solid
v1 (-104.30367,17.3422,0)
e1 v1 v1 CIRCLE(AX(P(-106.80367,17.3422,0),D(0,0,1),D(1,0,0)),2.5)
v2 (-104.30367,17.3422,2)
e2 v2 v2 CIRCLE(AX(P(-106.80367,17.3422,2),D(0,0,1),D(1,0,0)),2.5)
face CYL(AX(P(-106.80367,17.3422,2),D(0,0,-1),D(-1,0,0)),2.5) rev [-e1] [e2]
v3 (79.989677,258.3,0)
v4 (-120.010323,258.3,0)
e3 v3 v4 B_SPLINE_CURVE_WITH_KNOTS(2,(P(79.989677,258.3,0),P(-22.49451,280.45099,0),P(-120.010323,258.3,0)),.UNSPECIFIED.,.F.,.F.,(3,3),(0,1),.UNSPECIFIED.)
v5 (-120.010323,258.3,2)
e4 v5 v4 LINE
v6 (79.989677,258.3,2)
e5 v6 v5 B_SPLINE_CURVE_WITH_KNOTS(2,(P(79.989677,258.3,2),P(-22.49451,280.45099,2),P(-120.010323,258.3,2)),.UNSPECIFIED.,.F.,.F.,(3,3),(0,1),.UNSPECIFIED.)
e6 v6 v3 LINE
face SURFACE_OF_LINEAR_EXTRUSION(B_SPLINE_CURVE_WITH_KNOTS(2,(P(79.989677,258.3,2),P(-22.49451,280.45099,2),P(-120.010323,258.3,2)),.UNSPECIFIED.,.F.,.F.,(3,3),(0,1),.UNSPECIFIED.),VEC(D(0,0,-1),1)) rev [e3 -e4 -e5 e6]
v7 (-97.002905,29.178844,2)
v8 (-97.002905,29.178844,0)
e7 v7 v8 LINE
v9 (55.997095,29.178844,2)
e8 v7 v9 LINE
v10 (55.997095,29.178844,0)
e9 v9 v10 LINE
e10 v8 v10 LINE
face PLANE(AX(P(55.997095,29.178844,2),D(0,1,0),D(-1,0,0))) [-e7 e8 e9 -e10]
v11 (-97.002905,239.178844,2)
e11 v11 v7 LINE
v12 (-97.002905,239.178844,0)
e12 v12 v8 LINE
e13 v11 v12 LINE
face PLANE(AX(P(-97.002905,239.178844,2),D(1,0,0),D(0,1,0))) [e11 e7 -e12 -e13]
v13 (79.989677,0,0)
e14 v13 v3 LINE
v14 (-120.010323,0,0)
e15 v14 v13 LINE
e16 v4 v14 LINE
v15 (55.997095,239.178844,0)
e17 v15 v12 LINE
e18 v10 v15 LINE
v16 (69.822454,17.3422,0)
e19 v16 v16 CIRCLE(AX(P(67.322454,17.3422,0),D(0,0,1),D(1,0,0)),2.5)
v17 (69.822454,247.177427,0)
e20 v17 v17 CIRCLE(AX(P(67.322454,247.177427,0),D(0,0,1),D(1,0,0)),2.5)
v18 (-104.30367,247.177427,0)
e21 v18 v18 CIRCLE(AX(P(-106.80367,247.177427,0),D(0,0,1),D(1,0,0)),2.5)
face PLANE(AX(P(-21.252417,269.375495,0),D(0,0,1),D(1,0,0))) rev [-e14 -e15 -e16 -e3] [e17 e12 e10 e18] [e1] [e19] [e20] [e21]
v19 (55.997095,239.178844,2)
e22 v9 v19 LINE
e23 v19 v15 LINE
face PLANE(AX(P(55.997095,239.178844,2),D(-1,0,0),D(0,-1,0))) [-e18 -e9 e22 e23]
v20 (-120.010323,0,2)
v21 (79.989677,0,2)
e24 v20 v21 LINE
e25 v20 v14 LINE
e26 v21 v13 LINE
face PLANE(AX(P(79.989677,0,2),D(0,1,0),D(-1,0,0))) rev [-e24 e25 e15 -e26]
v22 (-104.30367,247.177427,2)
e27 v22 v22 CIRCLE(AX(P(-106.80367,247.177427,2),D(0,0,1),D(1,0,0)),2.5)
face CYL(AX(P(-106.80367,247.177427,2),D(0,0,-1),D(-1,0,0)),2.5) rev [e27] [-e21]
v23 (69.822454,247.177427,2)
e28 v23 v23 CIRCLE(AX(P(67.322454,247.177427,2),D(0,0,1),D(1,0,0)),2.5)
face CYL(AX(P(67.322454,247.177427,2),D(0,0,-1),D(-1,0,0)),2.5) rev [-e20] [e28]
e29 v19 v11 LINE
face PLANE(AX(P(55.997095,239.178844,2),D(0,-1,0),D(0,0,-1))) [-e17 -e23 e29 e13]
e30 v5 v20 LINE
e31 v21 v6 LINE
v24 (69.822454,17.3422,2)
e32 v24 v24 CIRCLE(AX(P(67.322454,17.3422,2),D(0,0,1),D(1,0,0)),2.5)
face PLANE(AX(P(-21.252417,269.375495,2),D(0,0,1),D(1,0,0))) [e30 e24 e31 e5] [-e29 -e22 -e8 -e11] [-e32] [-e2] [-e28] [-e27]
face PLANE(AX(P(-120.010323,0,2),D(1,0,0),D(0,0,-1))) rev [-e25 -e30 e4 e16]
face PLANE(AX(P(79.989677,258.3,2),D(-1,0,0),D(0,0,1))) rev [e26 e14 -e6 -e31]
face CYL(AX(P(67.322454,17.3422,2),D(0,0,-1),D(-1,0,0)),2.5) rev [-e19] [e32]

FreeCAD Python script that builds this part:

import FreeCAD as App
import Part
import Sketcher
Q = App.Units.Quantity

doc = App.newDocument("Part")
params = doc.addObject("Spreadsheet::Sheet", "Params")
for row, (alias, value) in enumerate([
    ("sketch1_diameter", "5 mm"),
    ("sketch1_width", "153 mm"),
    ("sketch1_height", "210 mm"),
    ("pad1_length", "2 mm"),
], start=1):
    params.set(f"A{row}", alias)
    params.set(f"B{row}", "=" + value)
    params.setAlias(f"B{row}", alias)

body = doc.addObject("PartDesign::Body", "Body")

sketch1 = body.newObject("Sketcher::SketchObject", "Sketch")
sketch1.AttachmentSupport = (doc.getObject("XY_Plane"), [""])
sketch1.MapMode = "FlatFace"
sketch1.addGeometry(Part.LineSegment(App.Vector(-120.010323, 0, 0), App.Vector(79.989677, 0, 0)), False)
sketch1.addGeometry(Part.LineSegment(App.Vector(79.989677, 0, 0), App.Vector(79.989677, 258.3, 0)), False)
sketch1.addGeometry(Part.BSplineCurve([App.Vector(-120.010323, 258.3, 0), App.Vector(-22.49451, 280.45099, 0), App.Vector(79.989677, 258.3, 0)], [3, 3], [0, 1], False, 2, [1, 1, 1], False), False)
sketch1.addGeometry(Part.LineSegment(App.Vector(-120.010323, 258.3, 0), App.Vector(-120.010323, 0, 0)), False)
sketch1.addGeometry(Part.Circle(App.Vector(67.322454, 17.3422, 0), App.Vector(0, 0, 1), 2.5), False)
sketch1.addGeometry(Part.Circle(App.Vector(-106.80367, 17.3422, 0), App.Vector(0, 0, 1), 2.5), False)
sketch1.addGeometry(Part.Circle(App.Vector(67.322454, 247.177427, 0), App.Vector(0, 0, 1), 2.5), False)
sketch1.addGeometry(Part.LineSegment(App.Vector(-97.002905, 29.178844, 0), App.Vector(-97.002905, 239.178844, 0)), False)
sketch1.addGeometry(Part.LineSegment(App.Vector(-97.002905, 239.178844, 0), App.Vector(55.997095, 239.178844, 0)), False)
sketch1.addGeometry(Part.LineSegment(App.Vector(55.997095, 239.178844, 0), App.Vector(55.997095, 29.178844, 0)), False)
sketch1.addGeometry(Part.LineSegment(App.Vector(55.997095, 29.178844, 0), App.Vector(-97.002905, 29.178844, 0)), False)
sketch1.addGeometry(Part.Circle(App.Vector(-106.80367, 247.177427, 0), App.Vector(0, 0, 1), 2.5), False)
sketch1.addConstraint(Sketcher.Constraint("Block", 2))
sketch1.addConstraint(Sketcher.Constraint("Coincident", 0, 2, 1, 1))
sketch1.addConstraint(Sketcher.Constraint("Coincident", 1, 2, 2, 2))
sketch1.addConstraint(Sketcher.Constraint("Coincident", 2, 1, 3, 1))
sketch1.addConstraint(Sketcher.Constraint("Coincident", 3, 2, 0, 1))
sketch1.addConstraint(Sketcher.Constraint("Coincident", 7, 2, 8, 1))
sketch1.addConstraint(Sketcher.Constraint("Coincident", 8, 2, 9, 1))
sketch1.addConstraint(Sketcher.Constraint("Coincident", 9, 2, 10, 1))
sketch1.addConstraint(Sketcher.Constraint("Coincident", 10, 2, 7, 1))
sketch1.addConstraint(Sketcher.Constraint("Horizontal", 0))
sketch1.addConstraint(Sketcher.Constraint("Vertical", 1))
sketch1.addConstraint(Sketcher.Constraint("Vertical", 3))
sketch1.addConstraint(Sketcher.Constraint("Vertical", 7))
sketch1.addConstraint(Sketcher.Constraint("Horizontal", 8))
sketch1.addConstraint(Sketcher.Constraint("Vertical", 9))
sketch1.addConstraint(Sketcher.Constraint("Horizontal", 10))
sketch1.addConstraint(Sketcher.Constraint("Equal", 4, 5))
sketch1.addConstraint(Sketcher.Constraint("Equal", 5, 6))
sketch1.addConstraint(Sketcher.Constraint("Equal", 6, 11))
sketch1.addConstraint(Sketcher.Constraint("PointOnObject", 0, 2, -1))
sketch1.addConstraint(Sketcher.Constraint("Horizontal", 4, 3, 5, 3))
sketch1.addConstraint(Sketcher.Constraint("Horizontal", 6, 3, 11, 3))
sketch1.addConstraint(Sketcher.Constraint("Vertical", 4, 3, 6, 3))
sketch1.addConstraint(Sketcher.Constraint("Vertical", 5, 3, 11, 3))
sketch1.addConstraint(Sketcher.Constraint("Diameter", 4, Q("5 mm")))
sketch1.addConstraint(Sketcher.Constraint("DistanceX", 8, 1, 8, 2, Q("153 mm")))
sketch1.addConstraint(Sketcher.Constraint("DistanceY", 7, 1, 7, 2, Q("210 mm")))
sketch1.addConstraint(Sketcher.Constraint("DistanceY", -1, 1, 4, 3, Q("17.3422 mm")))
sketch1.addConstraint(Sketcher.Constraint("DistanceX", 5, 3, -1, 1, Q("106.80367 mm")))
sketch1.addConstraint(Sketcher.Constraint("DistanceX", 7, 2, 6, 3, Q("164.325359 mm")))
sketch1.addConstraint(Sketcher.Constraint("DistanceX", -1, 1, 4, 3, Q("67.322454 mm")))
sketch1.addConstraint(Sketcher.Constraint("DistanceY", -1, 1, 6, 3, Q("247.177427 mm")))
sketch1.addConstraint(Sketcher.Constraint("DistanceY", -1, 1, 7, 2, Q("239.178844 mm")))
sketch1.setExpression("Constraints[24]", "Params.sketch1_diameter")
sketch1.setExpression("Constraints[25]", "Params.sketch1_width")
sketch1.setExpression("Constraints[26]", "Params.sketch1_height")
pad1 = body.newObject("PartDesign::Pad", "Pad")
pad1.Profile = sketch1
pad1.setExpression("Length", "Params.pad1_length")

doc.recompute()
